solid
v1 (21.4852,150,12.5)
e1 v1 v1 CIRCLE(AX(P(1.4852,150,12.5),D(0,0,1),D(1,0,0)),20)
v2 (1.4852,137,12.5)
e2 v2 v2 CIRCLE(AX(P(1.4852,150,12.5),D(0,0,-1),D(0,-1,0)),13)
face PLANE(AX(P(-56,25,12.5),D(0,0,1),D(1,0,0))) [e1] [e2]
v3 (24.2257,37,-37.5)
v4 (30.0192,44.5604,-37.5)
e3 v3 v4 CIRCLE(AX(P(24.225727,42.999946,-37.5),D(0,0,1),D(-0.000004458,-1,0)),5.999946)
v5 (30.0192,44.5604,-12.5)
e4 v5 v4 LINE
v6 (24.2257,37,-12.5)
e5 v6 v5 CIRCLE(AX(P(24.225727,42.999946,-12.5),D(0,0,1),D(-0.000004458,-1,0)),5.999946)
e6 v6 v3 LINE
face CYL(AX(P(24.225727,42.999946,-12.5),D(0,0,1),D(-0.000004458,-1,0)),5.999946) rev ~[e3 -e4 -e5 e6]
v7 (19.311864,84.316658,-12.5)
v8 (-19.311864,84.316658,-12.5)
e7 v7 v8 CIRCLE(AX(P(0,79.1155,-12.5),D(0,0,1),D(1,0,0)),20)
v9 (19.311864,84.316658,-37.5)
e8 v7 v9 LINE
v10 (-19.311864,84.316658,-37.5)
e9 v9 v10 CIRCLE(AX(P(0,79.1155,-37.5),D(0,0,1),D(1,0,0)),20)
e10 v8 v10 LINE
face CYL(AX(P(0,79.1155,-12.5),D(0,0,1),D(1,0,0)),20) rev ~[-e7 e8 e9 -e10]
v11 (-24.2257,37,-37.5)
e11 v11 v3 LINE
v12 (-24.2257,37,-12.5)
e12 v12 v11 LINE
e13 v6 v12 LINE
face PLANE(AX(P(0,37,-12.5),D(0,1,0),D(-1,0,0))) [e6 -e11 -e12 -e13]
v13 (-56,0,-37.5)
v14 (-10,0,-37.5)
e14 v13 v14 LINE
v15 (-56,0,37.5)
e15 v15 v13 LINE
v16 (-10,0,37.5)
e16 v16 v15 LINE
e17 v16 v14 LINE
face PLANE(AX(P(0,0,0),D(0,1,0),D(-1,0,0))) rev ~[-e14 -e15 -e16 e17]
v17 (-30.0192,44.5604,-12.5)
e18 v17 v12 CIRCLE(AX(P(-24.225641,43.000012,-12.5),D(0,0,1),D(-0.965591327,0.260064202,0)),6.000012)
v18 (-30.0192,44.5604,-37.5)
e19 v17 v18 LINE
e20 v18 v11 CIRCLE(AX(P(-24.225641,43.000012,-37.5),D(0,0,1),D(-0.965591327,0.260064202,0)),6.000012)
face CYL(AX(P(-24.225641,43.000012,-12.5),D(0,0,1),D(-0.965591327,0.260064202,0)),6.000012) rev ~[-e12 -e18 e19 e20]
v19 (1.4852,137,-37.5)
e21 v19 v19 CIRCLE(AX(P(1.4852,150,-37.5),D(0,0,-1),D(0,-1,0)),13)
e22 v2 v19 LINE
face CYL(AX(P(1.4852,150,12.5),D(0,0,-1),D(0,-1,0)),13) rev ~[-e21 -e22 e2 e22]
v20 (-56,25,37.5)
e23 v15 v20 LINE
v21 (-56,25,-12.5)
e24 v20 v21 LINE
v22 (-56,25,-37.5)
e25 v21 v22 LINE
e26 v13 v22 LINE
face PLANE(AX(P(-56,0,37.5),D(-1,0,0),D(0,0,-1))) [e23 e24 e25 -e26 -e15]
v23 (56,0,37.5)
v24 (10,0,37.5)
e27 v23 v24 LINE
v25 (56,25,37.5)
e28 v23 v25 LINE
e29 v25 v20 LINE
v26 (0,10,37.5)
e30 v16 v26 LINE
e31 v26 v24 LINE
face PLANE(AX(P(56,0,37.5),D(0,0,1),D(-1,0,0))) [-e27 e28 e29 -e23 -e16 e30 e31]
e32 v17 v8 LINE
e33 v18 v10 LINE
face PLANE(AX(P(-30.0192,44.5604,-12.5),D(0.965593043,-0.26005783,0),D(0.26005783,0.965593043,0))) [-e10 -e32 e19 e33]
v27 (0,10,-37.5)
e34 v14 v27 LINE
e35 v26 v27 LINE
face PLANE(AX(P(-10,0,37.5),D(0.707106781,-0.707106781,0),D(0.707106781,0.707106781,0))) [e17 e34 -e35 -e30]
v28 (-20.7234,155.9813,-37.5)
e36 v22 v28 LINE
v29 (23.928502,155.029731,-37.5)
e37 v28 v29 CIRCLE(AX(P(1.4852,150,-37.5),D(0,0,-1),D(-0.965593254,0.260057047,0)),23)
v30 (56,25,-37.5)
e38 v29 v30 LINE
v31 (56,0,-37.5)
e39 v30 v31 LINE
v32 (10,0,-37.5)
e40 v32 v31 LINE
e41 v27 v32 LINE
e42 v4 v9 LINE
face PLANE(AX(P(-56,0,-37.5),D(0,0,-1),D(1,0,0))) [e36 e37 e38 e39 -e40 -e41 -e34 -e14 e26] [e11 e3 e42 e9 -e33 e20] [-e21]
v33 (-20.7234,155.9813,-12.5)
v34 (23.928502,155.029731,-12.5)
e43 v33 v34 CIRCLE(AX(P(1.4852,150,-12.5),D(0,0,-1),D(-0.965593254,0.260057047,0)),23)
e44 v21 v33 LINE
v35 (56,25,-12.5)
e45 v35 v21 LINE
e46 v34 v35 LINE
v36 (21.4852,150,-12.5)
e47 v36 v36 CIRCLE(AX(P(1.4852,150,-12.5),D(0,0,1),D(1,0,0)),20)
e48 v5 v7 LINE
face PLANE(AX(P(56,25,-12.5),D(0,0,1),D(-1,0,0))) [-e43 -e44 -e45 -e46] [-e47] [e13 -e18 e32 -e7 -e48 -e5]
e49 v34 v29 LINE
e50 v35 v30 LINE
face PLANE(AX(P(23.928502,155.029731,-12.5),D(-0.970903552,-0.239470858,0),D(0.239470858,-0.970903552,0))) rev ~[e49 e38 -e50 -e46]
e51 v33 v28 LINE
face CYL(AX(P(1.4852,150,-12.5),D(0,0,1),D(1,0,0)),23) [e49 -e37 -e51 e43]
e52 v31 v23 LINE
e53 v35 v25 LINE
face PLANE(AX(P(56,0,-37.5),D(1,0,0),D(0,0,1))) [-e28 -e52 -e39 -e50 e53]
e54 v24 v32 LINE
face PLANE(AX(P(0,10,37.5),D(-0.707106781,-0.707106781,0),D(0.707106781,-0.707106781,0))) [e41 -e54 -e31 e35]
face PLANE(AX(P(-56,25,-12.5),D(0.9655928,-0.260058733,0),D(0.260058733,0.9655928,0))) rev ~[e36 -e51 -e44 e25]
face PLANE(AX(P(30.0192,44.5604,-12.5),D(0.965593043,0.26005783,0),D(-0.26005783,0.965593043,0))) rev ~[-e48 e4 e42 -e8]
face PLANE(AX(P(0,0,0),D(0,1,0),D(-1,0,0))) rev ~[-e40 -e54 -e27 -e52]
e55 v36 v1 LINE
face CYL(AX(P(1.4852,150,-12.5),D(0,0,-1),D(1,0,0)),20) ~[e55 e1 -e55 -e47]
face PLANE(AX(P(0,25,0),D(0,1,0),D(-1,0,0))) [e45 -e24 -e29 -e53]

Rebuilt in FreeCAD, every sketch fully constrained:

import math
import FreeCAD as App
import Part
import Sketcher

V = App.Vector

doc = App.newDocument("Part")
body = doc.addObject("PartDesign::Body", "Body")

# Sketch on XZ plane
sketch1 = body.newObject("Sketcher::SketchObject", "Sketch")
sketch1.AttachmentSupport = (doc.getObject("XZ_Plane"), [""])
sketch1.MapMode = "FlatFace"
sketch1.addGeometry([
    Part.LineSegment(V(56, -38, 0), V(-56, -38, 0)),
    Part.LineSegment(V(-56, -38, 0), V(-56, 38, 0)),
    Part.LineSegment(V(-56, 38, 0), V(56, 38, 0)),
    Part.LineSegment(V(56, 38, 0), V(56, -38, 0)),
], False)
sketch1.addConstraint([
    Sketcher.Constraint("Coincident", 0, 2, 1, 1),
    Sketcher.Constraint("Coincident", 1, 2, 2, 1),
    Sketcher.Constraint("Coincident", 2, 2, 3, 1),
    Sketcher.Constraint("Coincident", 3, 2, 0, 1),
    Sketcher.Constraint("Horizontal", 0),
    Sketcher.Constraint("Vertical", 1),
    Sketcher.Constraint("Horizontal", 2),
    Sketcher.Constraint("Vertical", 3),
    Sketcher.Constraint("Symmetric", 0, 2, 2, 2, -1, 1),
    Sketcher.Constraint("DistanceX", 0, 2, 0, 1, 112.0),
    Sketcher.Constraint("DistanceY", 1, 1, 1, 2, 75.0),
])
pad1 = body.newObject("PartDesign::Pad", "Pad")
pad1.Profile = sketch1
pad1.Length = 25
pad1.Reversed = True

# Sketch on XZ plane
sketch2 = body.newObject("Sketcher::SketchObject", "Sketch001")
sketch2.AttachmentSupport = (doc.getObject("XZ_Plane"), [""])
sketch2.MapMode = "FlatFace"
sketch2.AttachmentOffset = App.Placement(V(0, 0, -25), App.Rotation())
sketch2.addGeometry([
    Part.LineSegment(V(56, -12, 0), V(56, -38, 0)),
    Part.LineSegment(V(56, -38, 0), V(-56, -38, 0)),
    Part.LineSegment(V(-56, -38, 0), V(-56, -12, 0)),
    Part.LineSegment(V(-56, -12, 0), V(56, -12, 0)),
], False)
sketch2.addConstraint([
    Sketcher.Constraint("Coincident", 0, 2, 1, 1),
    Sketcher.Constraint("Coincident", 1, 2, 2, 1),
    Sketcher.Constraint("Coincident", 2, 2, 3, 1),
    Sketcher.Constraint("Coincident", 3, 2, 0, 1),
    Sketcher.Constraint("Vertical", 0),
    Sketcher.Constraint("Horizontal", 1),
    Sketcher.Constraint("Vertical", 2),
    Sketcher.Constraint("Horizontal", 3),
    Sketcher.Constraint("DistanceY", 0, 2, 0, 1, 25.0),
    Sketcher.Constraint("DistanceX", 1, 2, 1, 1, 112.0),
    Sketcher.Constraint("DistanceX", -1, 1, 0, 2, 56.0),
    Sketcher.Constraint("DistanceY", 0, 2, -1, 1, 37.5),
])
pad2 = body.newObject("PartDesign::Pad", "Pad001")
pad2.Profile = sketch2
pad2.Length = 148
pad2.Reversed = True

# Sketch on XY plane
sketch3 = body.newObject("Sketcher::SketchObject", "Sketch002")
sketch3.AttachmentSupport = (doc.getObject("XY_Plane"), [""])
sketch3.MapMode = "FlatFace"
sketch3.AttachmentOffset = App.Placement(V(0, 0, -12.5), App.Rotation())
sketch3.addGeometry([
    Part.LineSegment(V(-56, 25, 0), V(-21, 156, 0)),  # 0
    Part.ArcOfCircle(Part.Circle(V(1, 150, 0), V(0, 0, 1), 23), math.radians(90), math.radians(165)),  # 1
    Part.LineSegment(V(1, 173, 0), V(-56, 173, 0)),  # 2
    Part.LineSegment(V(-56, 173, 0), V(-56, 25, 0)),  # 3
    Part.LineSegment(V(56, 173, 0), V(1, 173, 0)),  # 4
    Part.ArcOfCircle(Part.Circle(V(1, 150, 0), V(0, 0, 1), 23), math.radians(13), math.radians(90)),  # 5
    Part.LineSegment(V(24, 155, 0), V(56, 25, 0)),  # 6
    Part.LineSegment(V(56, 25, 0), V(56, 173, 0)),  # 7
], False)
sketch3.addConstraint([
    Sketcher.Constraint("Tangent", 0, 2, 1, 2),
    Sketcher.Constraint("Tangent", 1, 1, 2, 1),
    Sketcher.Constraint("Coincident", 2, 2, 3, 1),
    Sketcher.Constraint("Coincident", 3, 2, 0, 1),
    Sketcher.Constraint("Tangent", 4, 2, 5, 2),
    Sketcher.Constraint("Coincident", 5, 1, 6, 1),
    Sketcher.Constraint("Coincident", 6, 2, 7, 1),
    Sketcher.Constraint("Coincident", 7, 2, 4, 1),
    Sketcher.Constraint("Horizontal", 2),
    Sketcher.Constraint("Vertical", 3),
    Sketcher.Constraint("Horizontal", 4),
    Sketcher.Constraint("Vertical", 7),
    Sketcher.Constraint("Coincident", 5, 3, 1, 3),
    Sketcher.Constraint("Equal", 1, 5),
    Sketcher.Constraint("Symmetric", 3, 2, 6, 2, -2),
    Sketcher.Constraint("Radius", 1, 23.0),
    Sketcher.Constraint("DistanceY", 3, 2, 3, 1, 148.0),
    Sketcher.Constraint("DistanceY", -1, 1, 1, 3, 150.0),
    Sketcher.Constraint("DistanceX", 2, 2, -1, 1, 56.0),
    Sketcher.Constraint("DistanceX", 2, 2, 2, 1, 57.4852),
    Sketcher.Constraint("DistanceX", 0, 2, 5, 1, 44.652),
])
pocket1 = body.newObject("PartDesign::Pocket", "Pocket")
pocket1.Profile = sketch3
pocket1.Length = 25

# Sketch on XY plane
sketch4 = body.newObject("Sketcher::SketchObject", "Sketch003")
sketch4.AttachmentSupport = (doc.getObject("XY_Plane"), [""])
sketch4.MapMode = "FlatFace"
sketch4.AttachmentOffset = App.Placement(V(0, 0, -12.5), App.Rotation())
sketch4.addGeometry(Part.Circle(V(1, 150, 0), V(0, 0, 1), 20), False)
sketch4.addConstraint([
    Sketcher.Constraint("Diameter", 0, 40.0),
    Sketcher.Constraint("DistanceY", -1, 1, 0, 3, 150.0),
    Sketcher.Constraint("DistanceX", -1, 1, 0, 3, 1.4852),
])
pad3 = body.newObject("PartDesign::Pad", "Pad002")
pad3.Profile = sketch4
pad3.Length = 25

# Sketch on XY plane
sketch5 = body.newObject("Sketcher::SketchObject", "Sketch004")
sketch5.AttachmentSupport = (doc.getObject("XY_Plane"), [""])
sketch5.MapMode = "FlatFace"
sketch5.AttachmentOffset = App.Placement(V(0, 0, -12.5), App.Rotation())
sketch5.addGeometry([
    Part.LineSegment(V(-24, 37, 0), V(24, 37, 0)),  # 0
    Part.ArcOfCircle(Part.Circle(V(24, 43, 0), V(0, 0, 1), 6), math.radians(-90), math.radians(15)),  # 1
    Part.LineSegment(V(30, 45, 0), V(19, 84, 0)),  # 2
    Part.ArcOfCircle(Part.Circle(V(0, 79, 0), V(0, 0, 1), 20), math.radians(15), math.radians(165)),  # 3
    Part.LineSegment(V(-19, 84, 0), V(-30, 45, 0)),  # 4
    Part.ArcOfCircle(Part.Circle(V(-24, 43, 0), V(0, 0, 1), 6), math.radians(165), math.radians(270)),  # 5
], False)
sketch5.addConstraint([
    Sketcher.Constraint("Tangent", 0, 2, 1, 1),
    Sketcher.Constraint("Tangent", 1, 2, 2, 1),
    Sketcher.Constraint("Tangent", 2, 2, 3, 1),
    Sketcher.Constraint("Tangent", 3, 2, 4, 1),
    Sketcher.Constraint("Tangent", 4, 2, 5, 1),
    Sketcher.Constraint("Tangent", 5, 2, 0, 1),
    Sketcher.Constraint("Horizontal", 0),
    Sketcher.Constraint("Equal", 1, 5),
    Sketcher.Constraint("Symmetric", 2, 2, 3, 2, -2),
    Sketcher.Constraint("Radius", 1, 6.0),
    Sketcher.Constraint("Radius", 3, 20.0),
    Sketcher.Constraint("DistanceY", -1, 1, 1, 3, 43.0),
    Sketcher.Constraint("Distance", 2, 41.173),
    Sketcher.Constraint("DistanceX", 0, 1, 0, 2, 48.4514),
])
pocket2 = body.newObject("PartDesign::Pocket", "Pocket001")
pocket2.Profile = sketch5
pocket2.Length = 25

# Sketch on XY plane
sketch6 = body.newObject("Sketcher::SketchObject", "Sketch005")
sketch6.AttachmentSupport = (doc.getObject("XY_Plane"), [""])
sketch6.MapMode = "FlatFace"
sketch6.AttachmentOffset = App.Placement(V(0, 0, 12.5), App.Rotation())
sketch6.addGeometry(Part.Circle(V(1, 150, 0), V(0, 0, 1), 13), False)
sketch6.addConstraint([
    Sketcher.Constraint("Diameter", 0, 26.0),
    Sketcher.Constraint("DistanceY", -1, 1, 0, 3, 150.0),
    Sketcher.Constraint("DistanceX", -1, 1, 0, 3, 1.4852),
])
doc.recompute()
hole = body.newObject("PartDesign::Hole", "Hole")
hole.Profile = sketch6
hole.ThreadType = "None"
hole.Diameter = 26
hole.DepthType = "ThroughAll"

# Sketch on XY plane
sketch7 = body.newObject("Sketcher::SketchObject", "Sketch006")
sketch7.AttachmentSupport = (doc.getObject("XY_Plane"), [""])
sketch7.MapMode = "FlatFace"
sketch7.AttachmentOffset = App.Placement(V(0, 0, 37.5), App.Rotation())
sketch7.addGeometry([
    Part.LineSegment(V(-10, 0, 0), V(10, 0, 0)),
    Part.LineSegment(V(10, 0, 0), V(0, 10, 0)),
    Part.LineSegment(V(0, 10, 0), V(-10, 0, 0)),
], False)
sketch7.addConstraint([
    Sketcher.Constraint("Coincident", 0, 2, 1, 1),
    Sketcher.Constraint("Coincident", 1, 2, 2, 1),
    Sketcher.Constraint("Coincident", 2, 2, 0, 1),
    Sketcher.Constraint("Horizontal", 0),
    Sketcher.Constraint("Symmetric", 0, 2, 2, 2, -1, 1),
    Sketcher.Constraint("PointOnObject", 1, 2, -2),
    Sketcher.Constraint("Perpendicular", 1, 2),
    Sketcher.Constraint("DistanceX", 0, 1, 0, 2, 20.0),
])
pocket3 = body.newObject("PartDesign::Pocket", "Pocket002")
pocket3.Profile = sketch7
pocket3.Length = 75

doc.recompute()
